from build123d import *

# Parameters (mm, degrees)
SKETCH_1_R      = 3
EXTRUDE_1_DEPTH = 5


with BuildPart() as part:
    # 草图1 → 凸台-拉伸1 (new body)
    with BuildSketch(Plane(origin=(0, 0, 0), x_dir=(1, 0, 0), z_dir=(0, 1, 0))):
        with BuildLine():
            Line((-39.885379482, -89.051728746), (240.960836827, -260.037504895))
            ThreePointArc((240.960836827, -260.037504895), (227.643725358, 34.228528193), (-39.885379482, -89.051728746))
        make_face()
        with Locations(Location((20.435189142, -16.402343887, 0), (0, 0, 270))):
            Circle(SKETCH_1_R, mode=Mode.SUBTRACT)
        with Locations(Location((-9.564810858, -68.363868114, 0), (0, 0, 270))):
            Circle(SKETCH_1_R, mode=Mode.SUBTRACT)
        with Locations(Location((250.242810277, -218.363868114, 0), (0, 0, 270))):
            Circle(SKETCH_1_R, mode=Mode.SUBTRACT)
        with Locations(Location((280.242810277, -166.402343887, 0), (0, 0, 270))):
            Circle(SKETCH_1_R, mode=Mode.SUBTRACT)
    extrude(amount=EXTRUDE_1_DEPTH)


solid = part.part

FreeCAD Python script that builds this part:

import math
import FreeCAD as App
import Part
import Sketcher

doc = App.newDocument("Part")
body = doc.addObject("PartDesign::Body", "Body")

# Sketch on XZ plane
sketch1 = body.newObject("Sketcher::SketchObject", "Sketch")
sketch1.AttachmentSupport = (doc.getObject("XZ_Plane"), [""])
sketch1.MapMode = "FlatFace"
sketch1.addGeometry(Part.LineSegment(App.Vector(-39.9, 89.1, 0), App.Vector(241, 260, 0)), False)
sketch1.addGeometry(Part.ArcOfCircle(Part.Circle(App.Vector(135.3, 117.4, 0), App.Vector(0, 0, 1), 177.5), math.radians(-171), math.radians(53)), False)
sketch1.addGeometry(Part.Circle(App.Vector(250.2, 218.4, 0), App.Vector(0, 0, 1), 3), False)
sketch1.addGeometry(Part.Circle(App.Vector(280.2, 166.4, 0), App.Vector(0, 0, 1), 3), False)
sketch1.addGeometry(Part.Circle(App.Vector(-9.6, 68.4, 0), App.Vector(0, 0, 1), 3), False)
sketch1.addGeometry(Part.Circle(App.Vector(20.4, 16.4, 0), App.Vector(0, 0, 1), 3), False)
sketch1.addConstraint(Sketcher.Constraint("Coincident", 0, 1, 1, 1))
sketch1.addConstraint(Sketcher.Constraint("Coincident", 1, 2, 0, 2))
sketch1.addConstraint(Sketcher.Constraint("Equal", 2, 3))
sketch1.addConstraint(Sketcher.Constraint("Equal", 3, 4))
sketch1.addConstraint(Sketcher.Constraint("Equal", 4, 5))
sketch1.addConstraint(Sketcher.Constraint("Diameter", 2, 6.0))
sketch1.addConstraint(Sketcher.Constraint("Radius", 1, 177.5))
sketch1.addConstraint(Sketcher.Constraint("DistanceX", 2, 3, 3, 3, 30.0))
sketch1.addConstraint(Sketcher.Constraint("DistanceY", 4, 3, 2, 3, 150.0))
sketch1.addConstraint(Sketcher.Constraint("DistanceX", 4, 3, 5, 3, 30.0))
sketch1.addConstraint(Sketcher.Constraint("DistanceY", 5, 3, 3, 3, 150.0))
sketch1.addConstraint(Sketcher.Constraint("DistanceX", -1, 1, 1, 3, 135.339))
sketch1.addConstraint(Sketcher.Constraint("DistanceY", 1, 3, 1, 2, 142.654399))
sketch1.addConstraint(Sketcher.Constraint("DistanceX", -1, 1, 2, 3, 250.24281))
sketch1.addConstraint(Sketcher.Constraint("DistanceY", -1, 1, 2, 3, 218.363868))
sketch1.addConstraint(Sketcher.Constraint("DistanceX", 4, 3, -1, 1, 9.564811))
sketch1.addConstraint(Sketcher.Constraint("DistanceX", 0, 1, -1, 1, 39.885379))
sketch1.addConstraint(Sketcher.Constraint("DistanceY", -1, 1, 0, 1, 89.051729))
sketch1.addConstraint(Sketcher.Constraint("DistanceY", 3, 3, 1, 2, 93.635161))
pad1 = body.newObject("PartDesign::Pad", "Pad")
pad1.Profile = sketch1
pad1.Length = 5
pad1.Reversed = True

doc.recompute()
